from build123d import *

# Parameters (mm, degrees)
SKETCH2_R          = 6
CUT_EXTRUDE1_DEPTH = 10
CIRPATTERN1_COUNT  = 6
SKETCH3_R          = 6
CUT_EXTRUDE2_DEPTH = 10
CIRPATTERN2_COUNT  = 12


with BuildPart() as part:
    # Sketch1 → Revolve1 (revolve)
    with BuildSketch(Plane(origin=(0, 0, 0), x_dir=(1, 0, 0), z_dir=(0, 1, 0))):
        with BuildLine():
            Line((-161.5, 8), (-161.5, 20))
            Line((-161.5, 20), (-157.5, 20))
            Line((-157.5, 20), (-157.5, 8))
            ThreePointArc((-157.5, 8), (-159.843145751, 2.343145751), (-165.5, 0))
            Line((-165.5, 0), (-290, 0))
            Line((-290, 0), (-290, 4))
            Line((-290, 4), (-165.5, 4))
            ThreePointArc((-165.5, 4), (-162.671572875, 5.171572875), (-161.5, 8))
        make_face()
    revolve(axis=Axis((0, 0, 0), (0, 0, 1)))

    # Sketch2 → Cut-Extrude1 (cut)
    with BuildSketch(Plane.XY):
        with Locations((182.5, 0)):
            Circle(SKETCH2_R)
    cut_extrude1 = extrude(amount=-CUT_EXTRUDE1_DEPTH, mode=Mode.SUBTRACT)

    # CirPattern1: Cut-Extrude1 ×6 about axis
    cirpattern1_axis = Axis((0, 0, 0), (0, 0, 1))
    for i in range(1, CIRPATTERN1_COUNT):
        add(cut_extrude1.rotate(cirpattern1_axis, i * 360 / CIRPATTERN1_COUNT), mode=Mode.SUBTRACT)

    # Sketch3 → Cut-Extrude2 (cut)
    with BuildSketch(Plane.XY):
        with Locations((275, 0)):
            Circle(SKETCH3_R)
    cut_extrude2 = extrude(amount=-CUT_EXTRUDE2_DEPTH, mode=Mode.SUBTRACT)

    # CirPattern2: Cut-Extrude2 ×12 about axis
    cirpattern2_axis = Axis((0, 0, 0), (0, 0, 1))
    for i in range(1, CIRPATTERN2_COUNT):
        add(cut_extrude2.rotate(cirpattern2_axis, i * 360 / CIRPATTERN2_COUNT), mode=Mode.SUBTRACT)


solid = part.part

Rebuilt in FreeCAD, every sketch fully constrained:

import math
import FreeCAD as App
import Part
import Sketcher
from FreeCAD import Vector

doc = App.newDocument("Part")
body = doc.addObject("PartDesign::Body", "Body")

sketch1 = body.newObject("Sketcher::SketchObject", "Sketch")
sketch1.AttachmentSupport = (doc.getObject("XZ_Plane"), [""])
sketch1.MapMode = "FlatFace"
sketch1.addGeometry(Part.LineSegment(Vector(-161.5, -20, 0), Vector(-161.5, -8, 0)), False)
sketch1.addGeometry(Part.ArcOfCircle(Part.Circle(Vector(-165.5, -8, 0), Vector(0, 0, 1), 4), math.radians(0), math.radians(90)), False)
sketch1.addGeometry(Part.LineSegment(Vector(-165.5, -4, 0), Vector(-290, -4, 0)), False)
sketch1.addGeometry(Part.LineSegment(Vector(-290, -4, 0), Vector(-290, 0, 0)), False)
sketch1.addGeometry(Part.LineSegment(Vector(-290, 0, 0), Vector(-165.5, 0, 0)), False)
sketch1.addGeometry(Part.ArcOfCircle(Part.Circle(Vector(-165.5, -8, 0), Vector(0, 0, 1), 8), math.radians(0), math.radians(90)), False)
sketch1.addGeometry(Part.LineSegment(Vector(-157.5, -8, 0), Vector(-157.5, -20, 0)), False)
sketch1.addGeometry(Part.LineSegment(Vector(-157.5, -20, 0), Vector(-161.5, -20, 0)), False)
sketch1.addConstraint(Sketcher.Constraint("Tangent", 0, 2, 1, 1))
sketch1.addConstraint(Sketcher.Constraint("Tangent", 1, 2, 2, 1))
sketch1.addConstraint(Sketcher.Constraint("Coincident", 2, 2, 3, 1))
sketch1.addConstraint(Sketcher.Constraint("Coincident", 3, 2, 4, 1))
sketch1.addConstraint(Sketcher.Constraint("Tangent", 4, 2, 5, 2))
sketch1.addConstraint(Sketcher.Constraint("Tangent", 5, 1, 6, 1))
sketch1.addConstraint(Sketcher.Constraint("Coincident", 6, 2, 7, 1))
sketch1.addConstraint(Sketcher.Constraint("Coincident", 7, 2, 0, 1))
sketch1.addConstraint(Sketcher.Constraint("Vertical", 0))
sketch1.addConstraint(Sketcher.Constraint("Horizontal", 2))
sketch1.addConstraint(Sketcher.Constraint("Vertical", 3))
sketch1.addConstraint(Sketcher.Constraint("Horizontal", 4))
sketch1.addConstraint(Sketcher.Constraint("Vertical", 6))
sketch1.addConstraint(Sketcher.Constraint("Horizontal", 7))
sketch1.addConstraint(Sketcher.Constraint("Coincident", 5, 3, 1, 3))
sketch1.addConstraint(Sketcher.Constraint("PointOnObject", 3, 2, -1))
sketch1.addConstraint(Sketcher.Constraint("Radius", 1, 4.0))
sketch1.addConstraint(Sketcher.Constraint("Radius", 5, 8.0))
sketch1.addConstraint(Sketcher.Constraint("DistanceY", 0, 1, 0, 2, 12.0))
sketch1.addConstraint(Sketcher.Constraint("DistanceX", 2, 2, 2, 1, 124.5))
sketch1.addConstraint(Sketcher.Constraint("DistanceX", 2, 2, -1, 1, 290.0))
revolution = body.newObject("PartDesign::Revolution", "Revolution")
revolution.Profile = sketch1
revolution.ReferenceAxis = (sketch1, ["V_Axis"])
revolution.Angle = 360

sketch2 = body.newObject("Sketcher::SketchObject", "Sketch001")
sketch2.AttachmentSupport = (doc.getObject("XY_Plane"), [""])
sketch2.MapMode = "FlatFace"
sketch2.addGeometry(Part.Circle(Vector(182, 0, 0), Vector(0, 0, 1), 6), False)
sketch2.addConstraint(Sketcher.Constraint("PointOnObject", 0, 3, -1))
sketch2.addConstraint(Sketcher.Constraint("Diameter", 0, 12.0))
sketch2.addConstraint(Sketcher.Constraint("DistanceX", -1, 1, 0, 3, 182.5))
pocket1 = body.newObject("PartDesign::Pocket", "Pocket")
pocket1.Profile = sketch2
pocket1.Length = 10
doc.recompute()

polarpattern = body.newObject("PartDesign::PolarPattern", "PolarPattern")
polarpattern.Originals = [pocket1]
polarpattern.Axis = (doc.getObject("Z_Axis"), [""])
polarpattern.Angle = 360
polarpattern.Occurrences = 6
body.Tip = polarpattern

sketch3 = body.newObject("Sketcher::SketchObject", "Sketch002")
sketch3.AttachmentSupport = (doc.getObject("XY_Plane"), [""])
sketch3.MapMode = "FlatFace"
sketch3.addGeometry(Part.Circle(Vector(275, 0, 0), Vector(0, 0, 1), 6), False)
sketch3.addConstraint(Sketcher.Constraint("PointOnObject", 0, 3, -1))
sketch3.addConstraint(Sketcher.Constraint("Diameter", 0, 12.0))
sketch3.addConstraint(Sketcher.Constraint("DistanceX", -1, 1, 0, 3, 275.0))
pocket2 = body.newObject("PartDesign::Pocket", "Pocket001")
pocket2.Profile = sketch3
pocket2.Length = 10
doc.recompute()

polarpattern2 = body.newObject("PartDesign::PolarPattern", "PolarPattern001")
polarpattern2.Originals = [pocket2]
polarpattern2.Axis = (doc.getObject("Z_Axis"), [""])
polarpattern2.Angle = 360
polarpattern2.Occurrences = 12
body.Tip = polarpattern2

doc.recompute()
